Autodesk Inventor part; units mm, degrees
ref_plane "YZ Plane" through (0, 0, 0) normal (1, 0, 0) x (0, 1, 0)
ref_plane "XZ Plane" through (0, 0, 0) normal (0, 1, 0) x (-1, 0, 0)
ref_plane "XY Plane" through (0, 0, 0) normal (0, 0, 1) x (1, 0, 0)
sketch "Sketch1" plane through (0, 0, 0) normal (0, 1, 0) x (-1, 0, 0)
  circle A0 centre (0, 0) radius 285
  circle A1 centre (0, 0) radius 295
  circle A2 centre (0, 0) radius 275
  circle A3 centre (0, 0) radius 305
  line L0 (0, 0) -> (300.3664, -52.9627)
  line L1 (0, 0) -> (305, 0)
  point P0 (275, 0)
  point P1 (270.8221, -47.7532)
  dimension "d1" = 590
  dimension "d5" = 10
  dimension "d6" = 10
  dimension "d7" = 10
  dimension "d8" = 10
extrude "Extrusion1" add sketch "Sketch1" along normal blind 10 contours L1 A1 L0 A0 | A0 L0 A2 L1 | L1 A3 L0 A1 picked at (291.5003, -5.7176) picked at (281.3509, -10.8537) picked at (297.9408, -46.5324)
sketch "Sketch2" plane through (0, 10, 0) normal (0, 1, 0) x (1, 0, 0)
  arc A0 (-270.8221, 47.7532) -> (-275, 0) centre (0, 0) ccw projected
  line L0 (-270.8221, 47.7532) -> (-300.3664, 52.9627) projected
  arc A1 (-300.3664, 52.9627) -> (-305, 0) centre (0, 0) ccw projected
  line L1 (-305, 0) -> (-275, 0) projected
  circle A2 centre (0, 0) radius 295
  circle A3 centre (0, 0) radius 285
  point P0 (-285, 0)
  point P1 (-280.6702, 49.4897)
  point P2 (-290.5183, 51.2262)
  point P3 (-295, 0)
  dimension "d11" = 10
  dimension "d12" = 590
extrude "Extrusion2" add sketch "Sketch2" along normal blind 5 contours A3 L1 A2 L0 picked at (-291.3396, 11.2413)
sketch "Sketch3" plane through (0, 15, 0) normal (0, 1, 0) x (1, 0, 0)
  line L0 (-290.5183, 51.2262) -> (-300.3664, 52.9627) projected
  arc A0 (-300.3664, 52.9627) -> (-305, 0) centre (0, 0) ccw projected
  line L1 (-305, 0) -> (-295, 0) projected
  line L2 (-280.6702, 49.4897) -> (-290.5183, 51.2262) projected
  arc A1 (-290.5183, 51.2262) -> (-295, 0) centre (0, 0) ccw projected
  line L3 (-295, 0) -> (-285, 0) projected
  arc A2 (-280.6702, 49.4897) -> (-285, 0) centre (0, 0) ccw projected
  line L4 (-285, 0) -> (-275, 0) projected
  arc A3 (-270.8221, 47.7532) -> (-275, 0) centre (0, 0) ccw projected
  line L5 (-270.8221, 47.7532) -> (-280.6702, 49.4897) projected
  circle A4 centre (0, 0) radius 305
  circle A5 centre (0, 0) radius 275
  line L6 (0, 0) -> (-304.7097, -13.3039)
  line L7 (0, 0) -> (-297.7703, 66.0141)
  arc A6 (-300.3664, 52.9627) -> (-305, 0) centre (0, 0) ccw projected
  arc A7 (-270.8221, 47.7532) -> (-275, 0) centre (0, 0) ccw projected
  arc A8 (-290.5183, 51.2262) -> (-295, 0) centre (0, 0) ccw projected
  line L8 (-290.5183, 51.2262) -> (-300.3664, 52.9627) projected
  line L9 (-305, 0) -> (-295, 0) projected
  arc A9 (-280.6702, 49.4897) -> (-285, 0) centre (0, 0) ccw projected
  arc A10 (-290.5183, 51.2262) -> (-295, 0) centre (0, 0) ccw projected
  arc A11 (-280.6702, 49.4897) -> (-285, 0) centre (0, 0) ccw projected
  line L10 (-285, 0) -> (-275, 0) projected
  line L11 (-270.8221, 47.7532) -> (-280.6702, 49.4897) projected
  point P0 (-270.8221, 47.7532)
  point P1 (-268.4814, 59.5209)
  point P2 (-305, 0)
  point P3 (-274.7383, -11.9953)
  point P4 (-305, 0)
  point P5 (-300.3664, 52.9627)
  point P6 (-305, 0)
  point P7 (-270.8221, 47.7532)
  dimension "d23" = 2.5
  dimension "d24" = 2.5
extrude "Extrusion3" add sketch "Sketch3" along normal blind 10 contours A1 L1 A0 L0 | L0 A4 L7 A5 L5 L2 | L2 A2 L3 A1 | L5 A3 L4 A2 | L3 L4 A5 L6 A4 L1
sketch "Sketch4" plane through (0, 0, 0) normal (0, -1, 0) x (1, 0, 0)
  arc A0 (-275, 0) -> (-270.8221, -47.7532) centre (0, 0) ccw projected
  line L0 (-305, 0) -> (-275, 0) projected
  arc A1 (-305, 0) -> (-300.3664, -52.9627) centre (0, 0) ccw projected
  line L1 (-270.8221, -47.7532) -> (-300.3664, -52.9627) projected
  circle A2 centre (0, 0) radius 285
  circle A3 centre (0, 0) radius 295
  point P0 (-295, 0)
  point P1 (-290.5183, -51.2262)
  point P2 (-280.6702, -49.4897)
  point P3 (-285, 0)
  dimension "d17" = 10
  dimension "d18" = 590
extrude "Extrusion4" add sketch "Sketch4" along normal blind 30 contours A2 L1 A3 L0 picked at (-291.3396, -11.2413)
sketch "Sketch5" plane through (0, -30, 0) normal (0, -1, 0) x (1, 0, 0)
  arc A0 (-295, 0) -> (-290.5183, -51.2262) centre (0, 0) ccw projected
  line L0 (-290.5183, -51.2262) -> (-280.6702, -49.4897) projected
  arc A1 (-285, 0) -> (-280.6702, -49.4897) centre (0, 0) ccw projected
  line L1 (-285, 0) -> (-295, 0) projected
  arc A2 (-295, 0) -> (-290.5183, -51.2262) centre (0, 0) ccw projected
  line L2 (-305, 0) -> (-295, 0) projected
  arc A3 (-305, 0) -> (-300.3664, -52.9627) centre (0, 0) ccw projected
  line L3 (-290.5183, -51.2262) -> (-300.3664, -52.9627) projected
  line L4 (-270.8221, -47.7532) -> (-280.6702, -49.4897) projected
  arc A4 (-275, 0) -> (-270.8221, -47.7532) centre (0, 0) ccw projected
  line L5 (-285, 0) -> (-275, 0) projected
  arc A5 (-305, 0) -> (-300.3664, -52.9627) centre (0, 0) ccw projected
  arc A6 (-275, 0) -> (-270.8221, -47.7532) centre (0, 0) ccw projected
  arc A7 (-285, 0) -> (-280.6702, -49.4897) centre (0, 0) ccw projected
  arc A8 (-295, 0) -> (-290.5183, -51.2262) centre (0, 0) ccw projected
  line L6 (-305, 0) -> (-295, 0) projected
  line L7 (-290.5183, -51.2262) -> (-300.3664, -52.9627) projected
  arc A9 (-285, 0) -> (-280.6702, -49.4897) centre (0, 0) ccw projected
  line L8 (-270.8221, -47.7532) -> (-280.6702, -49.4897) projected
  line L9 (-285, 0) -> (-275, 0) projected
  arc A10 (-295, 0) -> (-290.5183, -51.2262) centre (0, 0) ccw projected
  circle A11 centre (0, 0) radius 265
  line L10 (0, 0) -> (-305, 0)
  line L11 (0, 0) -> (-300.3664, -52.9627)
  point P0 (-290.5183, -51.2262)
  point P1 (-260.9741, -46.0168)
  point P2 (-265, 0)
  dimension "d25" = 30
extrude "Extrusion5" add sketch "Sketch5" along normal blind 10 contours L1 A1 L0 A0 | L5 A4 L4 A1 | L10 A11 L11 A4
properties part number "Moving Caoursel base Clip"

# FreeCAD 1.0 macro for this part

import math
import FreeCAD as App
import Part
import Sketcher

V = App.Vector
Q = App.Units.Quantity

doc = App.newDocument("Part")
body = doc.addObject("PartDesign::Body", "Body")

sketch1 = body.newObject("Sketcher::SketchObject", "Sketch")
sketch1.AttachmentSupport = (doc.getObject("XZ_Plane"), [""])
sketch1.MapMode = "FlatFace"
sketch1.addGeometry(Part.ArcOfCircle(Part.Circle(V(0, 0, 0), V(0, 0, 1), 275), math.radians(180), math.radians(190)), False)
sketch1.addGeometry(Part.LineSegment(V(-270.822132, -47.753248, 0), V(-300.3664, -52.9627, 0)), False)
sketch1.addGeometry(Part.ArcOfCircle(Part.Circle(V(0, 0, 0), V(0, 0, 1), 305), math.radians(180), math.radians(190)), False)
sketch1.addGeometry(Part.LineSegment(V(-305, 0, 0), V(-275, 0, 0)), False)
sketch1.addConstraint(Sketcher.Constraint("Coincident", 0, 2, 1, 1))
sketch1.addConstraint(Sketcher.Constraint("Coincident", 1, 2, 2, 2))
sketch1.addConstraint(Sketcher.Constraint("Coincident", 2, 1, 3, 1))
sketch1.addConstraint(Sketcher.Constraint("Coincident", 3, 2, 0, 1))
sketch1.addConstraint(Sketcher.Constraint("Horizontal", 3))
sketch1.addConstraint(Sketcher.Constraint("Coincident", 0, 3, -1, 1))
sketch1.addConstraint(Sketcher.Constraint("Coincident", 2, 3, -1, 1))
sketch1.addConstraint(Sketcher.Constraint("PointOnObject", 2, 1, -1))
sketch1.addConstraint(Sketcher.Constraint("Radius", 0, Q("275 mm")))
sketch1.addConstraint(Sketcher.Constraint("Radius", 2, Q("305 mm")))
sketch1.addConstraint(Sketcher.Constraint("Angle", 1, Q("-170 deg")))
sketch1.addConstraint(Sketcher.Constraint("DistanceX", 0, 2, -1, 1, Q("270.8221 mm")))
pad1 = body.newObject("PartDesign::Pad", "Pad")
pad1.Profile = sketch1
pad1.Length = 10
pad1.Reversed = True

sketch2 = body.newObject("Sketcher::SketchObject", "Sketch001")
sketch2.AttachmentSupport = (doc.getObject("XZ_Plane"), [""])
sketch2.MapMode = "FlatFace"
sketch2.AttachmentOffset = App.Placement(V(0, 0, -10), App.Rotation())
sketch2.addGeometry(Part.ArcOfCircle(Part.Circle(V(0, 0, 0), V(0, 0, 1), 285), math.radians(180), math.radians(189.999994)), False)
sketch2.addGeometry(Part.LineSegment(V(-280.670215, -49.489703, 0), V(-290.51829, -51.226198, 0)), False)
sketch2.addGeometry(Part.ArcOfCircle(Part.Circle(V(0, 0, 0), V(0, 0, 1), 295), math.radians(180), math.radians(189.999997)), False)
sketch2.addGeometry(Part.LineSegment(V(-295, 0, 0), V(-285, 0, 0)), False)
sketch2.addConstraint(Sketcher.Constraint("Coincident", 0, 2, 1, 1))
sketch2.addConstraint(Sketcher.Constraint("Coincident", 1, 2, 2, 2))
sketch2.addConstraint(Sketcher.Constraint("Coincident", 2, 1, 3, 1))
sketch2.addConstraint(Sketcher.Constraint("Coincident", 3, 2, 0, 1))
sketch2.addConstraint(Sketcher.Constraint("Horizontal", 3))
sketch2.addConstraint(Sketcher.Constraint("Coincident", 0, 3, -1, 1))
sketch2.addConstraint(Sketcher.Constraint("Coincident", 2, 3, -1, 1))
sketch2.addConstraint(Sketcher.Constraint("PointOnObject", 2, 1, -1))
sketch2.addConstraint(Sketcher.Constraint("Radius", 2, Q("295 mm")))
sketch2.addConstraint(Sketcher.Constraint("DistanceX", 3, 1, 3, 2, Q("10 mm")))
sketch2.addConstraint(Sketcher.Constraint("Angle", 1, Q("-170 deg")))
sketch2.addConstraint(Sketcher.Constraint("DistanceX", 0, 2, -1, 1, Q("280.6702 mm")))
pad2 = body.newObject("PartDesign::Pad", "Pad001")
pad2.Profile = sketch2
pad2.Length = 5
pad2.Reversed = True

sketch3 = body.newObject("Sketcher::SketchObject", "Sketch002")
sketch3.AttachmentSupport = (doc.getObject("XZ_Plane"), [""])
sketch3.MapMode = "FlatFace"
sketch3.AttachmentOffset = App.Placement(V(0, 0, -15), App.Rotation())
sketch3.addGeometry(Part.ArcOfCircle(Part.Circle(V(-0.004669, -0.000615, 0), V(0, 0, 1), 304.995331), math.radians(179.999885), math.radians(190.000039)), False)
sketch3.addGeometry(Part.ArcOfCircle(Part.Circle(V(0, 0, 0), V(0, 0, 1), 305), math.radians(177.500002), math.radians(180)), False)
sketch3.addGeometry(Part.LineSegment(V(-304.7097, 13.3039, 0), V(-274.738261, 11.99532, 0)), False)
sketch3.addGeometry(Part.ArcOfCircle(Part.Circle(V(0, 0, 0), V(0, 0, 1), 275), math.radians(177.500002), math.radians(180)), False)
sketch3.addGeometry(Part.ArcOfCircle(Part.Circle(V(0.005226, 0.000688, 0), V(0, 0, 1), 275.005226), math.radians(-179.999857), math.radians(-170.000057)), False)
sketch3.addGeometry(Part.ArcOfCircle(Part.Circle(V(0, 0, 0), V(0, 0, 1), 275), math.radians(-170.000009), math.radians(-167.499997)), False)
sketch3.addGeometry(Part.LineSegment(V(-268.481399, -59.520906, 0), V(-297.7703, -66.0141, 0)), False)
sketch3.addGeometry(Part.ArcOfCircle(Part.Circle(V(0, 0, 0), V(0, 0, 1), 305), math.radians(-170), math.radians(-167.499997)), False)
sketch3.addConstraint(Sketcher.Constraint("Coincident", 0, 1, 1, 2))
sketch3.addConstraint(Sketcher.Constraint("Coincident", 1, 1, 2, 1))
sketch3.addConstraint(Sketcher.Constraint("Coincident", 2, 2, 3, 1))
sketch3.addConstraint(Sketcher.Constraint("Coincident", 3, 2, 4, 1))
sketch3.addConstraint(Sketcher.Constraint("Coincident", 4, 2, 5, 1))
sketch3.addConstraint(Sketcher.Constraint("Coincident", 5, 2, 6, 1))
sketch3.addConstraint(Sketcher.Constraint("Coincident", 6, 2, 7, 2))
sketch3.addConstraint(Sketcher.Constraint("Coincident", 7, 1, 0, 2))
sketch3.addConstraint(Sketcher.Constraint("Coincident", 1, 3, -1, 1))
sketch3.addConstraint(Sketcher.Constraint("Coincident", 3, 3, -1, 1))
sketch3.addConstraint(Sketcher.Constraint("Coincident", 5, 3, -1, 1))
sketch3.addConstraint(Sketcher.Constraint("Coincident", 7, 3, -1, 1))
sketch3.addConstraint(Sketcher.Constraint("PointOnObject", 0, 1, -1))
sketch3.addConstraint(Sketcher.Constraint("PointOnObject", 3, 2, -1))
sketch3.addConstraint(Sketcher.Constraint("Radius", 1, Q("305 mm")))
sketch3.addConstraint(Sketcher.Constraint("Radius", 3, Q("275 mm")))
sketch3.addConstraint(Sketcher.Constraint("Radius", 5, Q("275 mm")))
sketch3.addConstraint(Sketcher.Constraint("Radius", 7, Q("305 mm")))
sketch3.addConstraint(Sketcher.Constraint("Radius", 0, Q("304.9953 mm")))
sketch3.addConstraint(Sketcher.Constraint("Radius", 4, Q("275.0052 mm")))
sketch3.addConstraint(Sketcher.Constraint("DistanceY", -1, 1, 1, 1, Q("13.304 mm")))
sketch3.addConstraint(Sketcher.Constraint("DistanceX", 4, 2, -1, 1, Q("270.822 mm")))
sketch3.addConstraint(Sketcher.Constraint("DistanceY", 5, 2, -1, 1, Q("59.521 mm")))
sketch3.addConstraint(Sketcher.Constraint("DistanceY", 6, 2, -1, 1, Q("66.014 mm")))
sketch3.addConstraint(Sketcher.Constraint("DistanceY", 0, 3, 2, 2, Q("11.996 mm")))
sketch3.addConstraint(Sketcher.Constraint("DistanceX", 7, 1, 6, 2, Q("2.596 mm")))
pad3 = body.newObject("PartDesign::Pad", "Pad002")
pad3.Profile = sketch3
pad3.Length = 10
pad3.Reversed = True

sketch4 = body.newObject("Sketcher::SketchObject", "Sketch003")
sketch4.AttachmentSupport = (doc.getObject("XZ_Plane"), [""])
sketch4.MapMode = "FlatFace"
sketch4.addGeometry(Part.ArcOfCircle(Part.Circle(V(0, 0, 0), V(0, 0, 1), 285), math.radians(180), math.radians(189.999994)), False)
sketch4.addGeometry(Part.LineSegment(V(-285, 0, 0), V(-295, 0, 0)), False)
sketch4.addGeometry(Part.ArcOfCircle(Part.Circle(V(0, 0, 0), V(0, 0, 1), 295), math.radians(180), math.radians(189.999997)), False)
sketch4.addGeometry(Part.LineSegment(V(-290.51829, -51.226198, 0), V(-280.670215, -49.489703, 0)), False)
sketch4.addConstraint(Sketcher.Constraint("Coincident", 0, 1, 1, 1))
sketch4.addConstraint(Sketcher.Constraint("Coincident", 1, 2, 2, 1))
sketch4.addConstraint(Sketcher.Constraint("Coincident", 2, 2, 3, 1))
sketch4.addConstraint(Sketcher.Constraint("Coincident", 3, 2, 0, 2))
sketch4.addConstraint(Sketcher.Constraint("Horizontal", 1))
sketch4.addConstraint(Sketcher.Constraint("Coincident", 0, 3, -1, 1))
sketch4.addConstraint(Sketcher.Constraint("Coincident", 2, 3, -1, 1))
sketch4.addConstraint(Sketcher.Constraint("PointOnObject", 0, 1, -1))
sketch4.addConstraint(Sketcher.Constraint("Radius", 2, Q("295 mm")))
sketch4.addConstraint(Sketcher.Constraint("DistanceX", 1, 2, 1, 1, Q("10 mm")))
sketch4.addConstraint(Sketcher.Constraint("Angle", 3, Q("10 deg")))
sketch4.addConstraint(Sketcher.Constraint("DistanceX", 2, 2, -1, 1, Q("290.5183 mm")))
pad4 = body.newObject("PartDesign::Pad", "Pad003")
pad4.Profile = sketch4
pad4.Length = 30

sketch5 = body.newObject("Sketcher::SketchObject", "Sketch004")
sketch5.AttachmentSupport = (doc.getObject("XZ_Plane"), [""])
sketch5.MapMode = "FlatFace"
sketch5.AttachmentOffset = App.Placement(V(0, 0, 30), App.Rotation())
sketch5.addGeometry(Part.ArcOfCircle(Part.Circle(V(0.001381, 0.00006, 0), V(0, 0, 1), 295.001381), math.radians(-179.999988), math.radians(-170.000038)), False)
sketch5.addGeometry(Part.LineSegment(V(-290.5183, -51.2262, 0), V(-270.8221, -47.7532, 0)), False)
sketch5.addGeometry(Part.LineSegment(V(-270.822093, -47.753242, 0), V(-260.974055, -46.016767, 0)), False)
sketch5.addGeometry(Part.ArcOfCircle(Part.Circle(V(0, 0, 0), V(0, 0, 1), 265), math.radians(180), math.radians(190)), False)
sketch5.addGeometry(Part.LineSegment(V(-265, 0, 0), V(-295, 0, 0)), False)
sketch5.addConstraint(Sketcher.Constraint("Coincident", 0, 2, 1, 1))
sketch5.addConstraint(Sketcher.Constraint("Coincident", 1, 2, 2, 1))
sketch5.addConstraint(Sketcher.Constraint("Coincident", 2, 2, 3, 2))
sketch5.addConstraint(Sketcher.Constraint("Coincident", 3, 1, 4, 1))
sketch5.addConstraint(Sketcher.Constraint("Coincident", 4, 2, 0, 1))
sketch5.addConstraint(Sketcher.Constraint("Horizontal", 4))
sketch5.addConstraint(Sketcher.Constraint("Coincident", 3, 3, -1, 1))
sketch5.addConstraint(Sketcher.Constraint("PointOnObject", 0, 3, -1))
sketch5.addConstraint(Sketcher.Constraint("PointOnObject", 3, 1, -1))
sketch5.addConstraint(Sketcher.Constraint("Parallel", 1, 2))
sketch5.addConstraint(Sketcher.Constraint("DistanceX", 4, 2, 4, 1, Q("30 mm")))
sketch5.addConstraint(Sketcher.Constraint("Radius", 3, Q("265 mm")))
sketch5.addConstraint(Sketcher.Constraint("Angle", 1, Q("10 deg")))
sketch5.addConstraint(Sketcher.Constraint("Distance", 1, Q("20 mm")))
sketch5.addConstraint(Sketcher.Constraint("Distance", 2, Q("10 mm")))
sketch5.addConstraint(Sketcher.Constraint("DistanceX", 1, 2, -1, 1, Q("270.822 mm")))
pad5 = body.newObject("PartDesign::Pad", "Pad004")
pad5.Profile = sketch5
pad5.Length = 10

doc.recompute()
